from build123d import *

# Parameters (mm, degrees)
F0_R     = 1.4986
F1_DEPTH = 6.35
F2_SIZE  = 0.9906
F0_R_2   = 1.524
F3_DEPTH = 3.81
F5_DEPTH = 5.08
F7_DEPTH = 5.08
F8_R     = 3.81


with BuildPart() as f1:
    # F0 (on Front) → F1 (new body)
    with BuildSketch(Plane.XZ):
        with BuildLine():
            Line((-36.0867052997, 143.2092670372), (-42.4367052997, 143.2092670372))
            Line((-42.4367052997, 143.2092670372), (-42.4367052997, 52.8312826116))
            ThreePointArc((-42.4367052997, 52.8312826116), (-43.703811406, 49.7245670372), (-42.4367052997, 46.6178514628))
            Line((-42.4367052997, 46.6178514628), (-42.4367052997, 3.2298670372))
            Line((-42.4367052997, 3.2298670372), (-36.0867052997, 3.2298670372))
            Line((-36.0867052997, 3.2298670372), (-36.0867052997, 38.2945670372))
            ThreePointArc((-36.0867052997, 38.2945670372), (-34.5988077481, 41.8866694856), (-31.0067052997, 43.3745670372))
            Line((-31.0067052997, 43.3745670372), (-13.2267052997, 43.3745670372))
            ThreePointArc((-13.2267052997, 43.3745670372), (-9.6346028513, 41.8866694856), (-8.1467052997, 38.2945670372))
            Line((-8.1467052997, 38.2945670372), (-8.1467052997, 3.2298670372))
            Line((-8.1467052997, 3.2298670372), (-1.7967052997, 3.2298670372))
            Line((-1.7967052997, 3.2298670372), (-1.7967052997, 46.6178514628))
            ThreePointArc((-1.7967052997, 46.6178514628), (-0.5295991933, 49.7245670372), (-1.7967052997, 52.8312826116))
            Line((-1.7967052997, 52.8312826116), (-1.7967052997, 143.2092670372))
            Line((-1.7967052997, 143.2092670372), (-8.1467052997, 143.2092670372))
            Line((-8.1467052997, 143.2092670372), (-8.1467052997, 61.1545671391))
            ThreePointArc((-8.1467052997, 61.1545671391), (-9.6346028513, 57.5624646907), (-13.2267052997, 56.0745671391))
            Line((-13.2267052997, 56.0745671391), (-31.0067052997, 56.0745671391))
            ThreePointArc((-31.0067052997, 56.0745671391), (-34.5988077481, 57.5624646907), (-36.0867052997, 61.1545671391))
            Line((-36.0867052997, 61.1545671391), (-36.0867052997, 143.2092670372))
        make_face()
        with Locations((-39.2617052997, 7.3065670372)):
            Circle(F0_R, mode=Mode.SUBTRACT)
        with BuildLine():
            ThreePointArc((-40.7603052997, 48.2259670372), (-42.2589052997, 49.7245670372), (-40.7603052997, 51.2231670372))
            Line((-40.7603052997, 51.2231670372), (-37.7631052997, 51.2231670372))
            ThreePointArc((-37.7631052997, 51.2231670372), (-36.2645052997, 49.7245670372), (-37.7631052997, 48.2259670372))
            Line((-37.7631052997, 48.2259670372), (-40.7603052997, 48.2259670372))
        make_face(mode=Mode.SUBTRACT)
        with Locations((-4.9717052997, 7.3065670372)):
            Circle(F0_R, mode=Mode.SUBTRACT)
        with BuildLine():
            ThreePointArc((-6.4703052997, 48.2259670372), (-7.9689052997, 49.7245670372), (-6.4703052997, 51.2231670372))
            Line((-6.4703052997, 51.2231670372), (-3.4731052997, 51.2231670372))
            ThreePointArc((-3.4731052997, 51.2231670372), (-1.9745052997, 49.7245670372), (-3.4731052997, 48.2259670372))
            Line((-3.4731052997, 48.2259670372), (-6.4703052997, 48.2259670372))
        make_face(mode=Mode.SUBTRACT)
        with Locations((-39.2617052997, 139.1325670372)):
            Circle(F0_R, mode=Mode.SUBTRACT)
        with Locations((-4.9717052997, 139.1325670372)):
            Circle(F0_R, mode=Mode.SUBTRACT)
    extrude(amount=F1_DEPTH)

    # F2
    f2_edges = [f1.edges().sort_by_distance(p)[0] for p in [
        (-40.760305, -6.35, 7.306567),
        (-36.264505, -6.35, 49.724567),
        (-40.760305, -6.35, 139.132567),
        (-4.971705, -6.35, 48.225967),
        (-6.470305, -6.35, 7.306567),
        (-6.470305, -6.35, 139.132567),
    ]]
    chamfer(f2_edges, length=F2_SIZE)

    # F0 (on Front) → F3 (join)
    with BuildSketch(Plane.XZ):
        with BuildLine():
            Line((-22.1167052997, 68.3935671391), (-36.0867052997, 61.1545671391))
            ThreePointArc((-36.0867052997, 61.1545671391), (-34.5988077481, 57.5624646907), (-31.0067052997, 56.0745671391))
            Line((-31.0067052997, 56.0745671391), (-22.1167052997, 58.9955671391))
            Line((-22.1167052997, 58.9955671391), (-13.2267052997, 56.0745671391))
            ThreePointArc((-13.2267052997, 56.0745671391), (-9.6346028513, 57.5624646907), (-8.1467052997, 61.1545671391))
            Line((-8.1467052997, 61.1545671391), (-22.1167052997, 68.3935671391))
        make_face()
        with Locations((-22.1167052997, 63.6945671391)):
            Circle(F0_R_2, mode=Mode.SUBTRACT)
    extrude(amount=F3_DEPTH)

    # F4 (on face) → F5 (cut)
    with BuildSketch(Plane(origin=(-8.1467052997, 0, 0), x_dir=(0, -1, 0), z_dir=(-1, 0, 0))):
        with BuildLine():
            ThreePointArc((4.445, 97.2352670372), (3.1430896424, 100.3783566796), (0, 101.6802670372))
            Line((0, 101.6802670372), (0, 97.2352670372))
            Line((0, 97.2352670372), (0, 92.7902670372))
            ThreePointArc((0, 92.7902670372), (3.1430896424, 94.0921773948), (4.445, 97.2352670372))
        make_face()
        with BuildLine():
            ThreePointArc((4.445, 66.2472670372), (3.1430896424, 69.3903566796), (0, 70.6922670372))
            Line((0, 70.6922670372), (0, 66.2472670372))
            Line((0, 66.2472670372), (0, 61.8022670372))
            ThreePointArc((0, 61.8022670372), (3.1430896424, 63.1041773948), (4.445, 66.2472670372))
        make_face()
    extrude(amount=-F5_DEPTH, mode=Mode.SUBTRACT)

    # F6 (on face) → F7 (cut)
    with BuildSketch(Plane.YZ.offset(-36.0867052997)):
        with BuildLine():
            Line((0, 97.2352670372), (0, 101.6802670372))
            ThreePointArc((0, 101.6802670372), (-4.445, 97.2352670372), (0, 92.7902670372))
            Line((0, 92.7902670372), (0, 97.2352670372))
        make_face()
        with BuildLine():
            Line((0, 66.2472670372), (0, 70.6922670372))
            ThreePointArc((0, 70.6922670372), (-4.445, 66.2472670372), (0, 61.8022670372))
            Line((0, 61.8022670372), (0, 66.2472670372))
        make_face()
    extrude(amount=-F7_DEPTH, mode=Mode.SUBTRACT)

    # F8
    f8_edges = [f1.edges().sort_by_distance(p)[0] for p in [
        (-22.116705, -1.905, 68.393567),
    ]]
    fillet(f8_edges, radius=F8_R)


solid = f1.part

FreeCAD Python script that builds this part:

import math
import FreeCAD as App
import Part
import Sketcher
from FreeCAD import Vector
Q = App.Units.Quantity


def edges_at(feature, points):
    """Names of the edges that pass closest to the given points."""
    edges = feature.Shape.Edges
    near = lambda p: min(range(len(edges)), key=lambda i: edges[i].distToShape(Part.Vertex(*p))[0])
    return sorted({f"Edge{near(p) + 1}" for p in points})

doc = App.newDocument("Part")
params = doc.addObject("Spreadsheet::Sheet", "Params")
for row, (alias, value) in enumerate([
    ("sketch1_radius", "0.2 in"),
    ("sketch1_diameter", "0.118 in"),
    ("sketch1_width", "0.7 in"),
    ("sketch1_width2", "0.25 in"),
    ("sketch1_width3", "0.118 in"),
    ("pad1_length", "0.25 in"),
    ("chamfer_size", "0.039 in"),
    ("sketch2_radius", "0.2 in"),
    ("sketch2_diameter", "0.12 in"),
    ("pad2_length", "0.15 in"),
    ("sketch3_radius", "0.175 in"),
    ("pocket1_length", "0.2 in"),
    ("sketch4_radius", "0.175 in"),
    ("pocket2_length", "0.2 in"),
    ("fillet_radius", "0.15 in"),
], start=1):
    params.set(f"A{row}", alias)
    params.set(f"B{row}", "=" + value)
    params.setAlias(f"B{row}", alias)

body = doc.addObject("PartDesign::Body", "Body")

sketch1 = body.newObject("Sketcher::SketchObject", "Sketch")
sketch1.AttachmentSupport = (doc.getObject("XZ_Plane"), [""])
sketch1.MapMode = "FlatFace"
sketch1.addGeometry([
    Part.LineSegment(Vector(-36.086705, 143.209267, 0), Vector(-42.436705, 143.209267, 0)),
    Part.LineSegment(Vector(-42.436705, 143.209267, 0), Vector(-42.436705, 52.831283, 0)),
    Part.ArcOfCircle(Part.Circle(Vector(-39.261705, 49.724567, 0), Vector(0, 0, 1), 4.442106), math.radians(135.6228), math.radians(224.3772)),
    Part.LineSegment(Vector(-42.436705, 46.617851, 0), Vector(-42.436705, 3.229867, 0)),
    Part.LineSegment(Vector(-42.436705, 3.229867, 0), Vector(-36.086705, 3.229867, 0)),
    Part.LineSegment(Vector(-36.086705, 3.229867, 0), Vector(-36.086705, 38.294567, 0)),
    Part.ArcOfCircle(Part.Circle(Vector(-31.006705, 38.294567, 0), Vector(0, 0, 1), 5.08), math.radians(90), math.radians(180)),
    Part.LineSegment(Vector(-31.006705, 43.374567, 0), Vector(-13.226705, 43.374567, 0)),
    Part.ArcOfCircle(Part.Circle(Vector(-13.226705, 38.294567, 0), Vector(0, 0, 1), 5.08), math.radians(0), math.radians(90)),
    Part.LineSegment(Vector(-8.146705, 38.294567, 0), Vector(-8.146705, 3.229867, 0)),
    Part.LineSegment(Vector(-8.146705, 3.229867, 0), Vector(-1.796705, 3.229867, 0)),
    Part.LineSegment(Vector(-1.796705, 3.229867, 0), Vector(-1.796705, 46.617851, 0)),
    Part.ArcOfCircle(Part.Circle(Vector(-4.971705, 49.724567, 0), Vector(0, 0, 1), 4.442106), math.radians(-44.3772), math.radians(44.3772)),
    Part.LineSegment(Vector(-1.796705, 52.831283, 0), Vector(-1.796705, 143.209267, 0)),
    Part.LineSegment(Vector(-1.796705, 143.209267, 0), Vector(-8.146705, 143.209267, 0)),
    Part.LineSegment(Vector(-8.146705, 143.209267, 0), Vector(-8.146705, 61.154567, 0)),
    Part.ArcOfCircle(Part.Circle(Vector(-13.226705, 61.154567, 0), Vector(0, 0, 1), 5.08), math.radians(-90), math.radians(0)),
    Part.LineSegment(Vector(-13.226705, 56.074567, 0), Vector(-31.006705, 56.074567, 0)),
    Part.ArcOfCircle(Part.Circle(Vector(-31.006705, 61.154567, 0), Vector(0, 0, 1), 5.08), math.radians(180), math.radians(270)),
    Part.LineSegment(Vector(-36.086705, 61.154567, 0), Vector(-36.086705, 143.209267, 0)),
    Part.Circle(Vector(-39.261705, 7.306567, 0), Vector(0, 0, 1), 1.4986),
    Part.LineSegment(Vector(-37.763105, 48.225967, 0), Vector(-40.760305, 48.225967, 0)),
    Part.ArcOfCircle(Part.Circle(Vector(-40.760305, 49.724567, 0), Vector(0, 0, 1), 1.4986), math.radians(90), math.radians(270)),
    Part.LineSegment(Vector(-40.760305, 51.223167, 0), Vector(-37.763105, 51.223167, 0)),
    Part.ArcOfCircle(Part.Circle(Vector(-37.763105, 49.724567, 0), Vector(0, 0, 1), 1.4986), math.radians(-90), math.radians(90)),
    Part.Circle(Vector(-4.971705, 7.306567, 0), Vector(0, 0, 1), 1.4986),
    Part.LineSegment(Vector(-3.473105, 48.225967, 0), Vector(-6.470305, 48.225967, 0)),
    Part.ArcOfCircle(Part.Circle(Vector(-6.470305, 49.724567, 0), Vector(0, 0, 1), 1.4986), math.radians(90), math.radians(270)),
    Part.LineSegment(Vector(-6.470305, 51.223167, 0), Vector(-3.473105, 51.223167, 0)),
    Part.ArcOfCircle(Part.Circle(Vector(-3.473105, 49.724567, 0), Vector(0, 0, 1), 1.4986), math.radians(-90), math.radians(90)),
    Part.Circle(Vector(-39.261705, 139.132567, 0), Vector(0, 0, 1), 1.4986),
    Part.Circle(Vector(-4.971705, 139.132567, 0), Vector(0, 0, 1), 1.4986),
], False)
sketch1.addConstraint([
    Sketcher.Constraint("Coincident", 0, 2, 1, 1),
    Sketcher.Constraint("Coincident", 1, 2, 2, 1),
    Sketcher.Constraint("Coincident", 2, 2, 3, 1),
    Sketcher.Constraint("Coincident", 3, 2, 4, 1),
    Sketcher.Constraint("Coincident", 4, 2, 5, 1),
    Sketcher.Constraint("Tangent", 5, 2, 6, 2),
    Sketcher.Constraint("Tangent", 6, 1, 7, 1),
    Sketcher.Constraint("Tangent", 7, 2, 8, 2),
    Sketcher.Constraint("Tangent", 8, 1, 9, 1),
    Sketcher.Constraint("Coincident", 9, 2, 10, 1),
    Sketcher.Constraint("Coincident", 10, 2, 11, 1),
    Sketcher.Constraint("Coincident", 11, 2, 12, 1),
    Sketcher.Constraint("Coincident", 12, 2, 13, 1),
    Sketcher.Constraint("Coincident", 13, 2, 14, 1),
    Sketcher.Constraint("Coincident", 14, 2, 15, 1),
    Sketcher.Constraint("Tangent", 15, 2, 16, 2),
    Sketcher.Constraint("Tangent", 16, 1, 17, 1),
    Sketcher.Constraint("Tangent", 17, 2, 18, 2),
    Sketcher.Constraint("Tangent", 18, 1, 19, 1),
    Sketcher.Constraint("Coincident", 19, 2, 0, 1),
    Sketcher.Constraint("Tangent", 21, 2, 22, 2),
    Sketcher.Constraint("Tangent", 22, 1, 23, 1),
    Sketcher.Constraint("Tangent", 23, 2, 24, 2),
    Sketcher.Constraint("Tangent", 24, 1, 21, 1),
    Sketcher.Constraint("Tangent", 26, 2, 27, 2),
    Sketcher.Constraint("Tangent", 27, 1, 28, 1),
    Sketcher.Constraint("Tangent", 28, 2, 29, 2),
    Sketcher.Constraint("Tangent", 29, 1, 26, 1),
    Sketcher.Constraint("Horizontal", 0),
    Sketcher.Constraint("Vertical", 1),
    Sketcher.Constraint("Vertical", 3),
    Sketcher.Constraint("Horizontal", 4),
    Sketcher.Constraint("Vertical", 5),
    Sketcher.Constraint("Horizontal", 7),
    Sketcher.Constraint("Vertical", 9),
    Sketcher.Constraint("Horizontal", 10),
    Sketcher.Constraint("Vertical", 11),
    Sketcher.Constraint("Vertical", 13),
    Sketcher.Constraint("Horizontal", 14),
    Sketcher.Constraint("Vertical", 15),
    Sketcher.Constraint("Horizontal", 17),
    Sketcher.Constraint("Vertical", 19),
    Sketcher.Constraint("Horizontal", 21),
    Sketcher.Constraint("Horizontal", 23),
    Sketcher.Constraint("Horizontal", 26),
    Sketcher.Constraint("Horizontal", 28),
    Sketcher.Constraint("Equal", 6, 8),
    Sketcher.Constraint("Equal", 2, 12),
    Sketcher.Constraint("Equal", 8, 16),
    Sketcher.Constraint("Equal", 16, 18),
    Sketcher.Constraint("Equal", 20, 22),
    Sketcher.Constraint("Equal", 24, 25),
    Sketcher.Constraint("Equal", 25, 27),
    Sketcher.Constraint("Equal", 29, 30),
    Sketcher.Constraint("Equal", 30, 31),
    Sketcher.Constraint("Horizontal", 2, 3, 12, 3),
    Sketcher.Constraint("Horizontal", 12, 3, 22, 3),
    Sketcher.Constraint("Horizontal", 20, 3, 25, 3),
    Sketcher.Constraint("Horizontal", 24, 3, 27, 3),
    Sketcher.Constraint("Horizontal", 30, 3, 31, 3),
    Sketcher.Constraint("Horizontal", 4, 2, 9, 2),
    Sketcher.Constraint("Horizontal", 2, 2, 11, 2),
    Sketcher.Constraint("Horizontal", 1, 2, 12, 2),
    Sketcher.Constraint("Horizontal", 0, 2, 13, 2),
    Sketcher.Constraint("Vertical", 8, 3, 16, 3),
    Sketcher.Constraint("Vertical", 6, 3, 18, 3),
    Sketcher.Constraint("Vertical", 2, 3, 20, 3),
    Sketcher.Constraint("Vertical", 12, 3, 25, 3),
    Sketcher.Constraint("Vertical", 20, 3, 30, 3),
    Sketcher.Constraint("Vertical", 25, 3, 31, 3),
    Sketcher.Constraint("Vertical", 1, 2, 2, 2),
    Sketcher.Constraint("Equal", 4, 10),
    Sketcher.Constraint("Equal", 23, 26),
    Sketcher.Constraint("Radius", 6, Q("0.2 in")),
    Sketcher.Constraint("Diameter", 20, Q("0.118 in")),
    Sketcher.Constraint("DistanceX", 7, 1, 7, 2, Q("0.7 in")),
    Sketcher.Constraint("DistanceX", 0, 2, 0, 1, Q("0.25 in")),
    Sketcher.Constraint("DistanceY", 8, 3, 16, 3, Q("0.9 in")),
    Sketcher.Constraint("DistanceX", 21, 2, 21, 1, Q("0.118 in")),
    Sketcher.Constraint("DistanceY", 6, 3, 2, 3, Q("0.45 in")),
    Sketcher.Constraint("DistanceX", 2, 3, 12, 3, Q("1.35 in")),
    Sketcher.Constraint("DistanceY", 20, 3, 6, 3, Q("1.22 in")),
    Sketcher.Constraint("DistanceY", 18, 3, 30, 3, Q("3.07 in")),
    Sketcher.Constraint("DistanceY", 5, 1, 5, 2, Q("1.3805 in")),
    Sketcher.Constraint("DistanceY", 15, 2, 15, 1, Q("3.2305 in")),
    Sketcher.Constraint("DistanceX", 22, 3, 2, 3, Q("0.059 in")),
    Sketcher.Constraint("DistanceX", 27, 3, 12, 3, Q("0.059 in")),
    Sketcher.Constraint("Radius", 2, 4.442106),
    Sketcher.Constraint("DistanceY", -1, 1, 2, 2, 46.617851),
    Sketcher.Constraint("DistanceX", 2, 3, -1, 1, 39.261705),
])
sketch1.setExpression("Constraints[73]", "Params.sketch1_radius")
sketch1.setExpression("Constraints[74]", "Params.sketch1_diameter")
sketch1.setExpression("Constraints[75]", "Params.sketch1_width")
sketch1.setExpression("Constraints[76]", "Params.sketch1_width2")
sketch1.setExpression("Constraints[78]", "Params.sketch1_width3")
pad1 = body.newObject("PartDesign::Pad", "Pad")
pad1.Profile = sketch1
pad1.setExpression("Length", "Params.pad1_length")
doc.recompute()

chamfer = body.newObject("PartDesign::Chamfer", "Chamfer")
chamfer.Base = (pad1, edges_at(pad1, [
    (-40.76, -6.35, 7.307),
    (-36.265, -6.35, 49.725),
    (-40.76, -6.35, 139.133),
    (-4.972, -6.35, 48.226),
    (-6.47, -6.35, 7.307),
    (-6.47, -6.35, 139.133),
]))
chamfer.setExpression("Size", "Params.chamfer_size")

sketch2 = body.newObject("Sketcher::SketchObject", "Sketch001")
sketch2.AttachmentSupport = (doc.getObject("XZ_Plane"), [""])
sketch2.MapMode = "FlatFace"
sketch2.addGeometry([
    Part.LineSegment(Vector(-22.116705, 68.393567, 0), Vector(-36.086705, 61.154567, 0)),
    Part.ArcOfCircle(Part.Circle(Vector(-31.006705, 61.154567, 0), Vector(0, 0, 1), 5.08), math.radians(180), math.radians(270)),
    Part.LineSegment(Vector(-31.006705, 56.074567, 0), Vector(-22.116705, 58.995567, 0)),
    Part.LineSegment(Vector(-22.116705, 58.995567, 0), Vector(-13.226705, 56.074567, 0)),
    Part.ArcOfCircle(Part.Circle(Vector(-13.226705, 61.154567, 0), Vector(0, 0, 1), 5.08), math.radians(-90), math.radians(0)),
    Part.LineSegment(Vector(-8.146705, 61.154567, 0), Vector(-22.116705, 68.393567, 0)),
    Part.Circle(Vector(-22.116705, 63.694567, 0), Vector(0, 0, 1), 1.524),
], False)
sketch2.addConstraint([
    Sketcher.Constraint("Coincident", 0, 2, 1, 1),
    Sketcher.Constraint("Coincident", 1, 2, 2, 1),
    Sketcher.Constraint("Coincident", 2, 2, 3, 1),
    Sketcher.Constraint("Coincident", 3, 2, 4, 1),
    Sketcher.Constraint("Coincident", 4, 2, 5, 1),
    Sketcher.Constraint("Coincident", 5, 2, 0, 1),
    Sketcher.Constraint("Equal", 1, 4),
    Sketcher.Constraint("Horizontal", 1, 3, 4, 3),
    Sketcher.Constraint("Horizontal", 4, 3, 0, 2),
    Sketcher.Constraint("Horizontal", 0, 2, 4, 2),
    Sketcher.Constraint("Vertical", 6, 3, 2, 2),
    Sketcher.Constraint("Vertical", 4, 3, 3, 2),
    Sketcher.Constraint("Vertical", 2, 2, 5, 2),
    Sketcher.Constraint("Equal", 2, 3),
    Sketcher.Constraint("Equal", 0, 5),
    Sketcher.Constraint("Radius", 1, Q("0.2 in")),
    Sketcher.Constraint("Diameter", 6, Q("0.12 in")),
    Sketcher.Constraint("DistanceX", 1, 3, 4, 3, Q("0.7 in")),
    Sketcher.Constraint("DistanceY", 4, 3, 6, 3, Q("0.1 in")),
    Sketcher.Constraint("DistanceY", 2, 2, 5, 2, Q("0.37 in")),
    Sketcher.Constraint("DistanceY", 2, 2, 6, 3, Q("0.185 in")),
    Sketcher.Constraint("DistanceX", 1, 3, -1, 1, 31.006705),
    Sketcher.Constraint("DistanceY", -1, 1, 1, 3, 61.154567),
])
sketch2.setExpression("Constraints[15]", "Params.sketch2_radius")
sketch2.setExpression("Constraints[16]", "Params.sketch2_diameter")
pad2 = body.newObject("PartDesign::Pad", "Pad001")
pad2.Profile = sketch2
pad2.setExpression("Length", "Params.pad2_length")

sketch3 = body.newObject("Sketcher::SketchObject", "Sketch002")
sketch3.AttachmentSupport = (doc.getObject("YZ_Plane"), [""])
sketch3.MapMode = "FlatFace"
sketch3.AttachmentOffset = App.Placement(Vector(0, 0, -8.146705), App.Rotation())
sketch3.addGeometry([
    Part.ArcOfCircle(Part.Circle(Vector(0, 97.235267, 0), Vector(0, 0, 1), 4.445), math.radians(90), math.radians(180)),
    Part.LineSegment(Vector(0, 101.680267, 0), Vector(0, 92.790267, 0)),
    Part.ArcOfCircle(Part.Circle(Vector(0, 97.235267, 0), Vector(0, 0, 1), 4.445), math.radians(180), math.radians(270)),
    Part.ArcOfCircle(Part.Circle(Vector(0, 66.247267, 0), Vector(0, 0, 1), 4.445), math.radians(90), math.radians(180)),
    Part.LineSegment(Vector(0, 70.692267, 0), Vector(0, 61.802267, 0)),
    Part.ArcOfCircle(Part.Circle(Vector(0, 66.247267, 0), Vector(0, 0, 1), 4.445), math.radians(180), math.radians(270)),
], False)
sketch3.addConstraint([
    Sketcher.Constraint("Coincident", 0, 1, 1, 1),
    Sketcher.Constraint("Coincident", 1, 2, 2, 2),
    Sketcher.Constraint("Tangent", 2, 1, 0, 2),
    Sketcher.Constraint("Coincident", 3, 1, 4, 1),
    Sketcher.Constraint("Coincident", 4, 2, 5, 2),
    Sketcher.Constraint("Tangent", 5, 1, 3, 2),
    Sketcher.Constraint("Vertical", 1),
    Sketcher.Constraint("Vertical", 4),
    Sketcher.Constraint("Equal", 0, 2),
    Sketcher.Constraint("Equal", 2, 3),
    Sketcher.Constraint("Equal", 3, 5),
    Sketcher.Constraint("PointOnObject", 0, 3, -2),
    Sketcher.Constraint("PointOnObject", 3, 3, -2),
    Sketcher.Constraint("PointOnObject", 0, 1, -2),
    Sketcher.Constraint("PointOnObject", 3, 1, -2),
    Sketcher.Constraint("Horizontal", 0, 3, 2, 1),
    Sketcher.Constraint("Horizontal", 3, 3, 5, 1),
    Sketcher.Constraint("Radius", 0, Q("0.175 in")),
    Sketcher.Constraint("DistanceY", 3, 3, 0, 3, Q("1.22 in")),
    Sketcher.Constraint("DistanceY", -1, 1, 0, 3, 97.235267),
])
sketch3.setExpression("Constraints[17]", "Params.sketch3_radius")
pocket1 = body.newObject("PartDesign::Pocket", "Pocket")
pocket1.Profile = sketch3
pocket1.setExpression("Length", "Params.pocket1_length")
pocket1.Reversed = True

sketch4 = body.newObject("Sketcher::SketchObject", "Sketch003")
sketch4.AttachmentSupport = (doc.getObject("YZ_Plane"), [""])
sketch4.MapMode = "FlatFace"
sketch4.AttachmentOffset = App.Placement(Vector(0, 0, -36.086705), App.Rotation())
sketch4.addGeometry([
    Part.ArcOfCircle(Part.Circle(Vector(0, 97.235267, 0), Vector(0, 0, 1), 4.445), math.radians(90), math.radians(270)),
    Part.LineSegment(Vector(0, 92.790267, 0), Vector(0, 101.680267, 0)),
    Part.ArcOfCircle(Part.Circle(Vector(0, 66.247267, 0), Vector(0, 0, 1), 4.445), math.radians(90), math.radians(270)),
    Part.LineSegment(Vector(0, 61.802267, 0), Vector(0, 70.692267, 0)),
], False)
sketch4.addConstraint([
    Sketcher.Constraint("Coincident", 0, 1, 1, 2),
    Sketcher.Constraint("Coincident", 1, 1, 0, 2),
    Sketcher.Constraint("Coincident", 2, 1, 3, 2),
    Sketcher.Constraint("Coincident", 3, 1, 2, 2),
    Sketcher.Constraint("Vertical", 1),
    Sketcher.Constraint("Vertical", 3),
    Sketcher.Constraint("Equal", 0, 2),
    Sketcher.Constraint("PointOnObject", 0, 3, -2),
    Sketcher.Constraint("PointOnObject", 2, 3, -2),
    Sketcher.Constraint("PointOnObject", 0, 1, -2),
    Sketcher.Constraint("PointOnObject", 2, 1, -2),
    Sketcher.Constraint("Radius", 0, Q("0.175 in")),
    Sketcher.Constraint("DistanceY", 2, 3, 0, 3, Q("1.22 in")),
    Sketcher.Constraint("DistanceY", -1, 1, 0, 3, 97.235267),
])
sketch4.setExpression("Constraints[11]", "Params.sketch4_radius")
pocket2 = body.newObject("PartDesign::Pocket", "Pocket001")
pocket2.Profile = sketch4
pocket2.setExpression("Length", "Params.pocket2_length")
doc.recompute()

fillet = body.newObject("PartDesign::Fillet", "Fillet")
fillet.Base = (pocket2, edges_at(pocket2, [(-22.117, -1.905, 68.394)]))
fillet.setExpression("Radius", "Params.fillet_radius")

doc.recompute()
